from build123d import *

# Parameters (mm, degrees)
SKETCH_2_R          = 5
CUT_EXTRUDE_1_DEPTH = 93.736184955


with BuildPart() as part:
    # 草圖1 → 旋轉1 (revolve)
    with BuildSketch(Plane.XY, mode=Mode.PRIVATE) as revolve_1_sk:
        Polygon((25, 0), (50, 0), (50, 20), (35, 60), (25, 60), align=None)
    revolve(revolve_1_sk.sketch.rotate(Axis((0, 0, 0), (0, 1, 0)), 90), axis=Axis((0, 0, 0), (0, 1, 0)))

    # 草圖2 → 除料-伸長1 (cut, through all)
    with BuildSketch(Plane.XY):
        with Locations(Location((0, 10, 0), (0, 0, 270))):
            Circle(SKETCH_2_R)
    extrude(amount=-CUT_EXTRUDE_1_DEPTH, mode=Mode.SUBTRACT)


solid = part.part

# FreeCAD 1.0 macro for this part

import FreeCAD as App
import Part
import Sketcher

V = App.Vector

doc = App.newDocument("Part")
body = doc.addObject("PartDesign::Body", "Body")

# Sketch on XY plane
sketch1 = body.newObject("Sketcher::SketchObject", "Sketch")
sketch1.AttachmentSupport = (doc.getObject("XY_Plane"), [""])
sketch1.MapMode = "FlatFace"
sketch1.addGeometry([
    Part.LineSegment(V(25, 0, 0), V(50, 0, 0)),  # 0
    Part.LineSegment(V(50, 0, 0), V(50, 20, 0)),  # 1
    Part.LineSegment(V(50, 20, 0), V(35, 60, 0)),  # 2
    Part.LineSegment(V(35, 60, 0), V(25, 60, 0)),  # 3
    Part.LineSegment(V(25, 60, 0), V(25, 0, 0)),  # 4
], False)
sketch1.addConstraint([
    Sketcher.Constraint("Coincident", 0, 2, 1, 1),
    Sketcher.Constraint("Coincident", 1, 2, 2, 1),
    Sketcher.Constraint("Coincident", 2, 2, 3, 1),
    Sketcher.Constraint("Coincident", 3, 2, 4, 1),
    Sketcher.Constraint("Coincident", 4, 2, 0, 1),
    Sketcher.Constraint("Horizontal", 0),
    Sketcher.Constraint("Vertical", 1),
    Sketcher.Constraint("Horizontal", 3),
    Sketcher.Constraint("Vertical", 4),
    Sketcher.Constraint("PointOnObject", 0, 2, -1),
    Sketcher.Constraint("DistanceX", 0, 1, 0, 2, 25.0),
    Sketcher.Constraint("DistanceX", 3, 2, 3, 1, 10.0),
    Sketcher.Constraint("DistanceY", 1, 1, 1, 2, 20.0),
    Sketcher.Constraint("DistanceY", 4, 2, 4, 1, 60.0),
    Sketcher.Constraint("DistanceX", -1, 1, 0, 2, 50.0),
])
revolution = body.newObject("PartDesign::Revolution", "Revolution")
revolution.Profile = sketch1
revolution.ReferenceAxis = (sketch1, ["V_Axis"])
revolution.Angle = 360

# Sketch on XY plane
sketch2 = body.newObject("Sketcher::SketchObject", "Sketch001")
sketch2.AttachmentSupport = (doc.getObject("XY_Plane"), [""])
sketch2.MapMode = "FlatFace"
sketch2.addGeometry(Part.Circle(V(0, 10, 0), V(0, 0, 1), 5), False)
sketch2.addConstraint([
    Sketcher.Constraint("PointOnObject", 0, 3, -2),
    Sketcher.Constraint("Diameter", 0, 10.0),
    Sketcher.Constraint("DistanceY", -1, 1, 0, 3, 10.0),
])
pocket1 = body.newObject("PartDesign::Pocket", "Pocket")
pocket1.Profile = sketch2
pocket1.Type = "ThroughAll"

doc.recompute()
